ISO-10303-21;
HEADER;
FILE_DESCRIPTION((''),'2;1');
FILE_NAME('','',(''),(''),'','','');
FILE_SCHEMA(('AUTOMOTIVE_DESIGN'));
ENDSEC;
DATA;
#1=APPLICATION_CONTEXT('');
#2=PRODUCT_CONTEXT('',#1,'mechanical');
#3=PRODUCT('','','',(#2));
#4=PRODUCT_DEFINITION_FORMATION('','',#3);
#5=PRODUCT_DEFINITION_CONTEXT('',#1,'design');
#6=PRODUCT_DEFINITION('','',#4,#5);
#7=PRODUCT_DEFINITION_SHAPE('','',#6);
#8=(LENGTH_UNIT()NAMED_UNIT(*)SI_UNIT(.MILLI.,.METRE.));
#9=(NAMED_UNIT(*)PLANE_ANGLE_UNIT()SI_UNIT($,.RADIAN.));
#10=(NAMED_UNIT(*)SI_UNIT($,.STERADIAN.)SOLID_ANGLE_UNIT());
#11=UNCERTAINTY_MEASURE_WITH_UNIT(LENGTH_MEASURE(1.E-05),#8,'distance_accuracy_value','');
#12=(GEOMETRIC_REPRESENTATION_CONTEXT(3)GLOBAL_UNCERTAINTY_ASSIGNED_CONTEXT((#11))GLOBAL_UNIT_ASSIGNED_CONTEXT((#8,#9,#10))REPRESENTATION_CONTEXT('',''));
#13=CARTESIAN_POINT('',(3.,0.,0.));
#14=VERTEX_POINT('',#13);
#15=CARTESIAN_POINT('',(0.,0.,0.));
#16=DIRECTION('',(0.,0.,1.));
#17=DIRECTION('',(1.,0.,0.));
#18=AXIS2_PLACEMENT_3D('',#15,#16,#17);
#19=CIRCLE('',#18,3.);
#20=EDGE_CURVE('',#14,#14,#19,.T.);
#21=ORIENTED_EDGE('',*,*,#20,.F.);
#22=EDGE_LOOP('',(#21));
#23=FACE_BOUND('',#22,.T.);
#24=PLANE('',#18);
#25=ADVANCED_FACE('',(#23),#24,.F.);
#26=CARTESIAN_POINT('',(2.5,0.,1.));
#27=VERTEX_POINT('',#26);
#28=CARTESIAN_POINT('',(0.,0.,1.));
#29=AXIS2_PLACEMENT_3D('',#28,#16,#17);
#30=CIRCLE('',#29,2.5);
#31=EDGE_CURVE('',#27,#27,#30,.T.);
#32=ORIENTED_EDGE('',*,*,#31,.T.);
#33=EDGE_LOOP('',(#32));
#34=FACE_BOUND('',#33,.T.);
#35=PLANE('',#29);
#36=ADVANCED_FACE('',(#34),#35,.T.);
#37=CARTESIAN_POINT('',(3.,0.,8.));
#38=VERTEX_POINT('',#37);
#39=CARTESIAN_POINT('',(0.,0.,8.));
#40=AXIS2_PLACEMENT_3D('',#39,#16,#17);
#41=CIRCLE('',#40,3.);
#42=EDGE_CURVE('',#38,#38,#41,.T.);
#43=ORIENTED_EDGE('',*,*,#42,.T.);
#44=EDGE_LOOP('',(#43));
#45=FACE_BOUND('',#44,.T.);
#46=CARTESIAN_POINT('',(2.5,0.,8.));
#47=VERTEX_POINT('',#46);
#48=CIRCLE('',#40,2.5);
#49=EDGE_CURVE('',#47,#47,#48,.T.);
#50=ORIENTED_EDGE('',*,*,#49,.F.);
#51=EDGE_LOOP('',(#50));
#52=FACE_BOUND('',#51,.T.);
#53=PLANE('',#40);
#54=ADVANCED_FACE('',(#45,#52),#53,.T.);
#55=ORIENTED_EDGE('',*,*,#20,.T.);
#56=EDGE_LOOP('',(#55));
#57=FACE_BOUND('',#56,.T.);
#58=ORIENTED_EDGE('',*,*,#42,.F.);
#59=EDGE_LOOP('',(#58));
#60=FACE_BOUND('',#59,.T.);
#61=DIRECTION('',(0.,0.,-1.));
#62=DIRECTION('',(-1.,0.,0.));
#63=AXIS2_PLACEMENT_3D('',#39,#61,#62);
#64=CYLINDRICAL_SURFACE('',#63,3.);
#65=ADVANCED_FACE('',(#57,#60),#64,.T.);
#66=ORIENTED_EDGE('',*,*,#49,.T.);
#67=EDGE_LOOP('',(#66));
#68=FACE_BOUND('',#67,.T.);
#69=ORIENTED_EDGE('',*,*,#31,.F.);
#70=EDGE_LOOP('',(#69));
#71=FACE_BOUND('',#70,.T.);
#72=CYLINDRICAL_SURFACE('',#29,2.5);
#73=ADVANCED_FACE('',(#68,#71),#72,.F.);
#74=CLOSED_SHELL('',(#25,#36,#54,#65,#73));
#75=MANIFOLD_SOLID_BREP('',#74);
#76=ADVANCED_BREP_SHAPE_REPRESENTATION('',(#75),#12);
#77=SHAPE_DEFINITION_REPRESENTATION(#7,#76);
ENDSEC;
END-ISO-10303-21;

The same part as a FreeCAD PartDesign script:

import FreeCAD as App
import Part
import Sketcher
from FreeCAD import Vector
Q = App.Units.Quantity

doc = App.newDocument("Part")
body = doc.addObject("PartDesign::Body", "Body")

sketch1 = doc.addObject("Sketcher::SketchObject", "Sketch")
body.addObject(sketch1)
sketch1.AttachmentSupport = (doc.XY_Plane, [""])
sketch1.MapMode = "FlatFace"
sketch1.addGeometry(Part.Circle(Vector(0, 0, 0), Vector(0, 0, 1), 3), False)
sketch1.addConstraint(Sketcher.Constraint("Coincident", 0, 3, -1, 1))
sketch1.addConstraint(Sketcher.Constraint("Diameter", 0, Q("6 mm")))
pad1 = doc.addObject("PartDesign::Pad", "Pad")
body.addObject(pad1)
pad1.Profile = sketch1
pad1.Length = 8

sketch2 = doc.addObject("Sketcher::SketchObject", "Sketch001")
body.addObject(sketch2)
sketch2.AttachmentSupport = (doc.XY_Plane, [""])
sketch2.MapMode = "FlatFace"
sketch2.AttachmentOffset = App.Placement(Vector(0, 0, 8), App.Rotation())
sketch2.addGeometry(Part.Circle(Vector(0, 0, 0), Vector(0, 0, 1), 2.5), False)
sketch2.addConstraint(Sketcher.Constraint("Coincident", 0, 3, -1, 1))
sketch2.addConstraint(Sketcher.Constraint("Diameter", 0, Q("5 mm")))
pocket1 = doc.addObject("PartDesign::Pocket", "Pocket")
body.addObject(pocket1)
pocket1.Profile = sketch2
pocket1.Length = 7

doc.recompute()
